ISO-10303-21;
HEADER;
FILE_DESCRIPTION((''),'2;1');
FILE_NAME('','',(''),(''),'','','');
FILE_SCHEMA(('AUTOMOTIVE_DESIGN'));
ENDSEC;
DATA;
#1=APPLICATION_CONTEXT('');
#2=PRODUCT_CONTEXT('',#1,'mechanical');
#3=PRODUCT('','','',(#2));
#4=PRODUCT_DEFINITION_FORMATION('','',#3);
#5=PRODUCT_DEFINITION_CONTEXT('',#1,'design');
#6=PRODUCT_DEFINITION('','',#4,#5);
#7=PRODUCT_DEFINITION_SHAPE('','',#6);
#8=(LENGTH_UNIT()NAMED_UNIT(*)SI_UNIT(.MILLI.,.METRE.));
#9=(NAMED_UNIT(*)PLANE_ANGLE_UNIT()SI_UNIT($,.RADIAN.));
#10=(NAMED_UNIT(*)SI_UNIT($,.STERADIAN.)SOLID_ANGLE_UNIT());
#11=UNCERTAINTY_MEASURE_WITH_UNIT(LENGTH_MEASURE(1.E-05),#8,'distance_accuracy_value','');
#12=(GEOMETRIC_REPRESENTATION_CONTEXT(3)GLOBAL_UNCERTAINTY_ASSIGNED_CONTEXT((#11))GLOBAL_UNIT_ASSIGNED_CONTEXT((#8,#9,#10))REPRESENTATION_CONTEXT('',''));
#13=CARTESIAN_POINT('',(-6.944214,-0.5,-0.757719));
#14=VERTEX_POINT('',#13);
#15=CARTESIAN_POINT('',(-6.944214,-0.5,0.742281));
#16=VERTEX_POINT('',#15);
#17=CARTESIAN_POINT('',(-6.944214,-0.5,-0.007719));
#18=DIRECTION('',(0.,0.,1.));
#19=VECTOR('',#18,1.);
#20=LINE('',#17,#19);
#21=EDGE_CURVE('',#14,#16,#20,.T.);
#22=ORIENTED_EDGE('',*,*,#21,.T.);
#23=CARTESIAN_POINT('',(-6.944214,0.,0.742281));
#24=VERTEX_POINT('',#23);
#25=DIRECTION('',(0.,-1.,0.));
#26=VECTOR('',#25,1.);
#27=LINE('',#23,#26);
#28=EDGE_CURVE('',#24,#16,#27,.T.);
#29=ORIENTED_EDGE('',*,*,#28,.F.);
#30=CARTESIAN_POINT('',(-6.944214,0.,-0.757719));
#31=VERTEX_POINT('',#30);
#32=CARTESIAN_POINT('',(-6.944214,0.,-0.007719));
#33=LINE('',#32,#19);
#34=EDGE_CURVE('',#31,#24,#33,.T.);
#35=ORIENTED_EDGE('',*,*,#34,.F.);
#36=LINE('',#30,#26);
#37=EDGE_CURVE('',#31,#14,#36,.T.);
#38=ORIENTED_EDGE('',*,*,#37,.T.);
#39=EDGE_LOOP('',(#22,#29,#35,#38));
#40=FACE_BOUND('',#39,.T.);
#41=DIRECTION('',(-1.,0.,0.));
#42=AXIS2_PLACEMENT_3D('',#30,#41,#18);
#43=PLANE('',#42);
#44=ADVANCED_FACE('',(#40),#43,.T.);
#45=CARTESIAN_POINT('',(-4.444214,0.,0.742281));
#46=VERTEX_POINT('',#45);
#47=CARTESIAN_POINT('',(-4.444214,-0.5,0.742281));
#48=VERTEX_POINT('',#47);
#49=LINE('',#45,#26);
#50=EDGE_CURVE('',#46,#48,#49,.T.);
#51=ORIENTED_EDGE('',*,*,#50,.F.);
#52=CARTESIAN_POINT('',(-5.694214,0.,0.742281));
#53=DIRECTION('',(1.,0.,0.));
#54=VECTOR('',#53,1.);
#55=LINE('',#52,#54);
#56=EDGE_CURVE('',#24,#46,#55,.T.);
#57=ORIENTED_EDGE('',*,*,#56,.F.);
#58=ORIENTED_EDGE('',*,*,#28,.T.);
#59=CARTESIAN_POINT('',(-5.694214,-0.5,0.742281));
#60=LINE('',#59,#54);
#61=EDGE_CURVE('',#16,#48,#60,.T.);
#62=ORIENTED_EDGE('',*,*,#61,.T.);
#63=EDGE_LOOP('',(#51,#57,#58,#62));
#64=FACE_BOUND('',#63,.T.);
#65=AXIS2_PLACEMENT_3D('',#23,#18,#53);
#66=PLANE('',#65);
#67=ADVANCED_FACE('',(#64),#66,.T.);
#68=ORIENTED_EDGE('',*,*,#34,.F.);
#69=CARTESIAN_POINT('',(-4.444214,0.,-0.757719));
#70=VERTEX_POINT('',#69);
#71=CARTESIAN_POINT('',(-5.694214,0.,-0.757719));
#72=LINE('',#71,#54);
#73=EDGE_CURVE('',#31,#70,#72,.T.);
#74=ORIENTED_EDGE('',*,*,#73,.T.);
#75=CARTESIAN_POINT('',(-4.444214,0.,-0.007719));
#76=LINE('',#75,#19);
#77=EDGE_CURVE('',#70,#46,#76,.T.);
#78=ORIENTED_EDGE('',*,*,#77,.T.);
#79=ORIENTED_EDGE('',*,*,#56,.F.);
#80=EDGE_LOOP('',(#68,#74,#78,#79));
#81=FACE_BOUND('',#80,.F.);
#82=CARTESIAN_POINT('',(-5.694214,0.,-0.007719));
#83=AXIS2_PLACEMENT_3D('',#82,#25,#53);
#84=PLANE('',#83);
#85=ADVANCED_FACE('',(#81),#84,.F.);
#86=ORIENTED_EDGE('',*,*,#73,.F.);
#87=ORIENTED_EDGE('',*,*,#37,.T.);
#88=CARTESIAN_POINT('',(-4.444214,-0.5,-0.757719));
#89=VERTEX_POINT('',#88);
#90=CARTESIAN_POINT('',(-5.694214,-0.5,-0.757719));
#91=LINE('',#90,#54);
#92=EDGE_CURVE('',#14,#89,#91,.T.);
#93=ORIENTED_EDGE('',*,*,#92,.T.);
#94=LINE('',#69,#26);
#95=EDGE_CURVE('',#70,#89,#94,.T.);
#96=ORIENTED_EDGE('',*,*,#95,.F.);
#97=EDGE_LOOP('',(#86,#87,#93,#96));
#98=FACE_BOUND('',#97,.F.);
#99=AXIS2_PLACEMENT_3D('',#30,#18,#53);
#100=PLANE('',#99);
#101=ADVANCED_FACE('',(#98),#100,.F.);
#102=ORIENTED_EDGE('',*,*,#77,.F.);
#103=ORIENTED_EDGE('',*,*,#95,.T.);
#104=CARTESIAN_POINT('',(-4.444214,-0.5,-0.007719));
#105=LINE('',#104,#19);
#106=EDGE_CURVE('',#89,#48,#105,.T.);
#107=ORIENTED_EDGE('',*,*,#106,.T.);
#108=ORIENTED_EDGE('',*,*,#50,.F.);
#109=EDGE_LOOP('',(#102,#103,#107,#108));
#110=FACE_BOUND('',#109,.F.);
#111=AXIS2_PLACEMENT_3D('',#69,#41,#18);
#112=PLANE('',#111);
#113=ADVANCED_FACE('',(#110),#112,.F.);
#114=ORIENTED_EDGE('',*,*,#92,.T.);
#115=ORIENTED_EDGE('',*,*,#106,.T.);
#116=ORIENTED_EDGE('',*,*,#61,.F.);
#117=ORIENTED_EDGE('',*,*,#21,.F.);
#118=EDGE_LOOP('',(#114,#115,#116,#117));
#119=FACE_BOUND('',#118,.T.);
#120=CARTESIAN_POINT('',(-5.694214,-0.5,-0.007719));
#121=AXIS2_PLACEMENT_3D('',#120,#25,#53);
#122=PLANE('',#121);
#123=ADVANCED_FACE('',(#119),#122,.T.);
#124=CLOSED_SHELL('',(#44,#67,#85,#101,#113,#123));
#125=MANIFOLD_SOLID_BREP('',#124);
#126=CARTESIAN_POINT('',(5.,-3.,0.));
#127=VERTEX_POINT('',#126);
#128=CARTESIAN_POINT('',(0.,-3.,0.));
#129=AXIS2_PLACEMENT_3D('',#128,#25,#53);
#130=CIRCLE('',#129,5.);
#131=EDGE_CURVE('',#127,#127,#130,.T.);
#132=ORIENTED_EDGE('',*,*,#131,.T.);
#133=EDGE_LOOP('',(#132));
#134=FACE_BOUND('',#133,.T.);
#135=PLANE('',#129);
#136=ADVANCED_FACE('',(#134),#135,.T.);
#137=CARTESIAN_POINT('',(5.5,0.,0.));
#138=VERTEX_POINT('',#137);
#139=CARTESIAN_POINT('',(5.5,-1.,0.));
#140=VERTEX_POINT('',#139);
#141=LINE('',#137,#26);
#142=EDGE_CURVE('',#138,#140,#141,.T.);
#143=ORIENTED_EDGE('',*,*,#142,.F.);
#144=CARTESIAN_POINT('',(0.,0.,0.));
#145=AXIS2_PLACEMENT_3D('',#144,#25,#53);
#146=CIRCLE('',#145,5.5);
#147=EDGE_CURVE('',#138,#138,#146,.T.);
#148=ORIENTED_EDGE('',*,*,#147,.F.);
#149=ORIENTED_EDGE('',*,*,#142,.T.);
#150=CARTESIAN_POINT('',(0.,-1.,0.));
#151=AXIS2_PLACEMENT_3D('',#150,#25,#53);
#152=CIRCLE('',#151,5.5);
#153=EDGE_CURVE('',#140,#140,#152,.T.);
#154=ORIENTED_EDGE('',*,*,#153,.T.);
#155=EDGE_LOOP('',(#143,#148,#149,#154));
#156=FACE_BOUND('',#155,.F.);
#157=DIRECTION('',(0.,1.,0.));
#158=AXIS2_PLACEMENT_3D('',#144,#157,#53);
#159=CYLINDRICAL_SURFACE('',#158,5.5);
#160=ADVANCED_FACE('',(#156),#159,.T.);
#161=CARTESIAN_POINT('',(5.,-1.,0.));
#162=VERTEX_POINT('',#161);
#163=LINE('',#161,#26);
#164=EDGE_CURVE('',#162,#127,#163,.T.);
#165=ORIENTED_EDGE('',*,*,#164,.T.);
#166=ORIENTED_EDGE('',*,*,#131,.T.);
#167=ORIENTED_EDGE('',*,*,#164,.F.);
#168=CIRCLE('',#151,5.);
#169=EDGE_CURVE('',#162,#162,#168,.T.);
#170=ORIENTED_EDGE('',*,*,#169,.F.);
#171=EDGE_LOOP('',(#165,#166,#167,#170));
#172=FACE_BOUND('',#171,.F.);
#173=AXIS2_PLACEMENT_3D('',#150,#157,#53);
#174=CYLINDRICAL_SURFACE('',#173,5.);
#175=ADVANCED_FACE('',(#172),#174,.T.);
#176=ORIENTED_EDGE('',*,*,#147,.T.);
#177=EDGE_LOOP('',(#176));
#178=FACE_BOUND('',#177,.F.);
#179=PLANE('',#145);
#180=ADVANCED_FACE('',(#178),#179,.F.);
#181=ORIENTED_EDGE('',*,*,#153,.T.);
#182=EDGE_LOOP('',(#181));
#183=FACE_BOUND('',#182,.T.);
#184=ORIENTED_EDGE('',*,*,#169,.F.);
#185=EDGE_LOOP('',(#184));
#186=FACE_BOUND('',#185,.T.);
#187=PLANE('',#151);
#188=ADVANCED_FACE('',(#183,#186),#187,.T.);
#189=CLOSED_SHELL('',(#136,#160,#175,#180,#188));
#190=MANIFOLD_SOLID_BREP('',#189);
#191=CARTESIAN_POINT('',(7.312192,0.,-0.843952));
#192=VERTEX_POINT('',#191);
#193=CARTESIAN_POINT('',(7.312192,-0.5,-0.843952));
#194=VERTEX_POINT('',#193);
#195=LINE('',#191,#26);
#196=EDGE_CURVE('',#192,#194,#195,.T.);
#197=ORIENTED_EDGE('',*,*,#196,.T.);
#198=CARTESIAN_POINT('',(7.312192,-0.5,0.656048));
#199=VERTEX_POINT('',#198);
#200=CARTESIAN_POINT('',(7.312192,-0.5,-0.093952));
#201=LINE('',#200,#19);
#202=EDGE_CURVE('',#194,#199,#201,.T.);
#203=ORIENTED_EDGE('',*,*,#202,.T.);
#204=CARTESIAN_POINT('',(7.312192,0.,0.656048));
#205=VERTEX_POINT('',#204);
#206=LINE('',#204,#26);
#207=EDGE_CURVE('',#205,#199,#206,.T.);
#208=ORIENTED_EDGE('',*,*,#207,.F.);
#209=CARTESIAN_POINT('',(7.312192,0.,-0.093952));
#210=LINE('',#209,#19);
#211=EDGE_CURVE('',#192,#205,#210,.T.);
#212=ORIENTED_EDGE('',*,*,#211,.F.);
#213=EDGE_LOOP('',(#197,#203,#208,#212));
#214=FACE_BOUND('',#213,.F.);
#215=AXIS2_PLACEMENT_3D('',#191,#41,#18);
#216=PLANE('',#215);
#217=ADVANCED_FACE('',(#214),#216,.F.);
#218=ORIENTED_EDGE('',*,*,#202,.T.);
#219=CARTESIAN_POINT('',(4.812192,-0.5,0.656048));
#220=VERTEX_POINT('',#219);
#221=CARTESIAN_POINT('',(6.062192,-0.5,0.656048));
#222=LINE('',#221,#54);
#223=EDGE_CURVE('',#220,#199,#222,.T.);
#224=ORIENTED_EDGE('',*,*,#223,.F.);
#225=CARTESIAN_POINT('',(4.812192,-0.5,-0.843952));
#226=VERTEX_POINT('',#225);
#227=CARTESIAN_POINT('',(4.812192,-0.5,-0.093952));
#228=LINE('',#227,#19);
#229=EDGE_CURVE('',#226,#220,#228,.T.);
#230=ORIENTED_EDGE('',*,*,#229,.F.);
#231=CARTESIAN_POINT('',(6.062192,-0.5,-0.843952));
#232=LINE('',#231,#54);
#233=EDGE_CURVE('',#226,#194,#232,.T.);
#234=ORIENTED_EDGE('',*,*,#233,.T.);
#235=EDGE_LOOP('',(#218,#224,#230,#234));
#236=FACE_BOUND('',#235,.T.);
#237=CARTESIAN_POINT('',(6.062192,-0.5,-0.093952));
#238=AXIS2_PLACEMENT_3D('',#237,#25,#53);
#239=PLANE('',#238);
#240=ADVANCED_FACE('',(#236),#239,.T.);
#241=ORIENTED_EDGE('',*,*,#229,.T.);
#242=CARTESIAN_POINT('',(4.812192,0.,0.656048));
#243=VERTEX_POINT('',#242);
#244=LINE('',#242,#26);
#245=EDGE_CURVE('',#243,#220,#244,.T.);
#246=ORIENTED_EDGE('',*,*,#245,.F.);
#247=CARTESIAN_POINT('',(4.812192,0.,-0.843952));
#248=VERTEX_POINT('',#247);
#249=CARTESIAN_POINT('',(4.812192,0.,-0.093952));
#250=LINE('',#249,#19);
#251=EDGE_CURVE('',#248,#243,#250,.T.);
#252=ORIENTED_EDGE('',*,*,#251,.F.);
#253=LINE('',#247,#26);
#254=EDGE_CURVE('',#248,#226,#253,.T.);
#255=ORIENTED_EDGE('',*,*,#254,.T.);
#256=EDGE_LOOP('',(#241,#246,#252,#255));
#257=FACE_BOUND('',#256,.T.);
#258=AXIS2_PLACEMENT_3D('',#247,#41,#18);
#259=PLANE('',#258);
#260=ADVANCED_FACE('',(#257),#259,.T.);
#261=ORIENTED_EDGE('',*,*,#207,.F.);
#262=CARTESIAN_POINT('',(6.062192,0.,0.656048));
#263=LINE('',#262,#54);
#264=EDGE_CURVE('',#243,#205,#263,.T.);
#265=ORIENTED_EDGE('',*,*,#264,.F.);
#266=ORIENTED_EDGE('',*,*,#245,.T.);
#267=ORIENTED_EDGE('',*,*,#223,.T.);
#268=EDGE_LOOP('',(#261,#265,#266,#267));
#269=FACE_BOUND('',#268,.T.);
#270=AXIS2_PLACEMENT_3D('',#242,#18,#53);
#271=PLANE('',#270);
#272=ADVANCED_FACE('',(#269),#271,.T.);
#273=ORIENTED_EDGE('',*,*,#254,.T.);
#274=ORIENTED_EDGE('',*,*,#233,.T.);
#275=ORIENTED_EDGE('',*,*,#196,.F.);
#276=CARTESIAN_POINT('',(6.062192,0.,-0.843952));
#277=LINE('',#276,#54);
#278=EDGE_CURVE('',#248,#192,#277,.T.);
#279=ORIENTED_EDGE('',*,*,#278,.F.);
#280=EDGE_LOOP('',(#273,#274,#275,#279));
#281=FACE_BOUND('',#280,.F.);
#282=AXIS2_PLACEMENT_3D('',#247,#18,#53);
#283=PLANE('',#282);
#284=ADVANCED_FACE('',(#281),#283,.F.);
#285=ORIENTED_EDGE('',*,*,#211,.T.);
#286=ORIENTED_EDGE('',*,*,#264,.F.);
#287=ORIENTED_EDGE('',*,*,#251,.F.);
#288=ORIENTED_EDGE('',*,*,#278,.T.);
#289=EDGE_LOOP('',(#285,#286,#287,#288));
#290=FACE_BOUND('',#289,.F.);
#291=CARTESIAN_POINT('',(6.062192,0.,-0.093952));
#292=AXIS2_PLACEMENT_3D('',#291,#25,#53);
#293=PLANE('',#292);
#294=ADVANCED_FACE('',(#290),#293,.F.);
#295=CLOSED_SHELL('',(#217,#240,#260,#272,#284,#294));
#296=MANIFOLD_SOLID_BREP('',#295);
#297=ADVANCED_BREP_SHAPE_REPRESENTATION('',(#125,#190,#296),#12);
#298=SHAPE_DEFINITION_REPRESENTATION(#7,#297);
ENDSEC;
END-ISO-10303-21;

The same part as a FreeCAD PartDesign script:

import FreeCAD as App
import Part
import Sketcher
from FreeCAD import Vector
Q = App.Units.Quantity


def add_polygon(sketch, points):
    """Adds a closed chain of lines whose ends are joined by coincident constraints."""
    first, n = sketch.GeometryCount, len(points)
    for a, b in zip(points, points[1:] + points[:1]):
        sketch.addGeometry(Part.LineSegment(App.Vector(*a, 0), App.Vector(*b, 0)), False)
    for i in range(n):
        sketch.addConstraint(Sketcher.Constraint("Coincident", first + i, 2, first + (i + 1) % n, 1))

doc = App.newDocument("Part")
body = doc.addObject("PartDesign::Body", "Body")

# Sketch on XZ plane
sketch1 = body.newObject("Sketcher::SketchObject", "Sketch")
sketch1.AttachmentSupport = (doc.getObject("XZ_Plane"), [""])
sketch1.MapMode = "FlatFace"
sketch1.addGeometry(Part.Circle(Vector(0, 0, 0), Vector(0, 0, 1), 6), False)
sketch1.addConstraint(Sketcher.Constraint("Coincident", 0, 3, -1, 1))
sketch1.addConstraint(Sketcher.Constraint("Diameter", 0, Q("11 mm")))
pad1 = body.newObject("PartDesign::Pad", "Pad")
pad1.Profile = sketch1
pad1.Length = 1

# Sketch on XZ plane
sketch2 = body.newObject("Sketcher::SketchObject", "Sketch001")
sketch2.AttachmentSupport = (doc.getObject("XZ_Plane"), [""])
sketch2.MapMode = "FlatFace"
sketch2.AttachmentOffset = App.Placement(Vector(0, 0, 1), App.Rotation())
sketch2.addGeometry(Part.Circle(Vector(0, 0, 0), Vector(0, 0, 1), 5), False)
sketch2.addConstraint(Sketcher.Constraint("Coincident", 0, 3, -1, 1))
sketch2.addConstraint(Sketcher.Constraint("Diameter", 0, Q("10 mm")))
pad2 = body.newObject("PartDesign::Pad", "Pad001")
pad2.Profile = sketch2
pad2.Length = 2
body2 = doc.addObject("PartDesign::Body", "Body001")

# Sketch on XZ plane
sketch3 = body2.newObject("Sketcher::SketchObject", "Sketch002")
sketch3.AttachmentSupport = (doc.getObject("XZ_Plane001"), [""])
sketch3.MapMode = "FlatFace"
add_polygon(sketch3, [(4.8, 0.7), (4.8, -0.8), (7.3, -0.8), (7.3, 0.7)])  # lines 0-3
sketch3.addConstraint(Sketcher.Constraint("Vertical", 0))
sketch3.addConstraint(Sketcher.Constraint("Horizontal", 1))
sketch3.addConstraint(Sketcher.Constraint("Vertical", 2))
sketch3.addConstraint(Sketcher.Constraint("Horizontal", 3))
sketch3.addConstraint(Sketcher.Constraint("DistanceX", 1, 1, 1, 2, Q("2.5 mm")))
sketch3.addConstraint(Sketcher.Constraint("DistanceY", 0, 2, 0, 1, Q("1.5 mm")))
sketch3.addConstraint(Sketcher.Constraint("DistanceX", -1, 1, 0, 2, Q("4.812192 mm")))
sketch3.addConstraint(Sketcher.Constraint("DistanceY", 0, 2, -1, 1, Q("0.843952 mm")))
pad3 = body2.newObject("PartDesign::Pad", "Pad002")
pad3.Profile = sketch3
pad3.Length = 0.5
body3 = doc.addObject("PartDesign::Body", "Body002")

# Sketch on XZ plane
sketch4 = body3.newObject("Sketcher::SketchObject", "Sketch003")
sketch4.AttachmentSupport = (doc.getObject("XZ_Plane002"), [""])
sketch4.MapMode = "FlatFace"
add_polygon(sketch4, [(-6.9, 0.7), (-6.9, -0.8), (-4.4, -0.8), (-4.4, 0.7)])  # lines 0-3
sketch4.addConstraint(Sketcher.Constraint("Vertical", 0))
sketch4.addConstraint(Sketcher.Constraint("Horizontal", 1))
sketch4.addConstraint(Sketcher.Constraint("Vertical", 2))
sketch4.addConstraint(Sketcher.Constraint("Horizontal", 3))
sketch4.addConstraint(Sketcher.Constraint("DistanceX", 1, 1, 1, 2, Q("2.5 mm")))
sketch4.addConstraint(Sketcher.Constraint("DistanceY", 0, 2, 0, 1, Q("1.5 mm")))
sketch4.addConstraint(Sketcher.Constraint("DistanceY", 0, 2, -1, 1, Q("0.757719 mm")))
sketch4.addConstraint(Sketcher.Constraint("DistanceX", 0, 2, -1, 1, Q("6.944214 mm")))
pad4 = body3.newObject("PartDesign::Pad", "Pad003")
pad4.Profile = sketch4
pad4.Length = 0.5

doc.recompute()
